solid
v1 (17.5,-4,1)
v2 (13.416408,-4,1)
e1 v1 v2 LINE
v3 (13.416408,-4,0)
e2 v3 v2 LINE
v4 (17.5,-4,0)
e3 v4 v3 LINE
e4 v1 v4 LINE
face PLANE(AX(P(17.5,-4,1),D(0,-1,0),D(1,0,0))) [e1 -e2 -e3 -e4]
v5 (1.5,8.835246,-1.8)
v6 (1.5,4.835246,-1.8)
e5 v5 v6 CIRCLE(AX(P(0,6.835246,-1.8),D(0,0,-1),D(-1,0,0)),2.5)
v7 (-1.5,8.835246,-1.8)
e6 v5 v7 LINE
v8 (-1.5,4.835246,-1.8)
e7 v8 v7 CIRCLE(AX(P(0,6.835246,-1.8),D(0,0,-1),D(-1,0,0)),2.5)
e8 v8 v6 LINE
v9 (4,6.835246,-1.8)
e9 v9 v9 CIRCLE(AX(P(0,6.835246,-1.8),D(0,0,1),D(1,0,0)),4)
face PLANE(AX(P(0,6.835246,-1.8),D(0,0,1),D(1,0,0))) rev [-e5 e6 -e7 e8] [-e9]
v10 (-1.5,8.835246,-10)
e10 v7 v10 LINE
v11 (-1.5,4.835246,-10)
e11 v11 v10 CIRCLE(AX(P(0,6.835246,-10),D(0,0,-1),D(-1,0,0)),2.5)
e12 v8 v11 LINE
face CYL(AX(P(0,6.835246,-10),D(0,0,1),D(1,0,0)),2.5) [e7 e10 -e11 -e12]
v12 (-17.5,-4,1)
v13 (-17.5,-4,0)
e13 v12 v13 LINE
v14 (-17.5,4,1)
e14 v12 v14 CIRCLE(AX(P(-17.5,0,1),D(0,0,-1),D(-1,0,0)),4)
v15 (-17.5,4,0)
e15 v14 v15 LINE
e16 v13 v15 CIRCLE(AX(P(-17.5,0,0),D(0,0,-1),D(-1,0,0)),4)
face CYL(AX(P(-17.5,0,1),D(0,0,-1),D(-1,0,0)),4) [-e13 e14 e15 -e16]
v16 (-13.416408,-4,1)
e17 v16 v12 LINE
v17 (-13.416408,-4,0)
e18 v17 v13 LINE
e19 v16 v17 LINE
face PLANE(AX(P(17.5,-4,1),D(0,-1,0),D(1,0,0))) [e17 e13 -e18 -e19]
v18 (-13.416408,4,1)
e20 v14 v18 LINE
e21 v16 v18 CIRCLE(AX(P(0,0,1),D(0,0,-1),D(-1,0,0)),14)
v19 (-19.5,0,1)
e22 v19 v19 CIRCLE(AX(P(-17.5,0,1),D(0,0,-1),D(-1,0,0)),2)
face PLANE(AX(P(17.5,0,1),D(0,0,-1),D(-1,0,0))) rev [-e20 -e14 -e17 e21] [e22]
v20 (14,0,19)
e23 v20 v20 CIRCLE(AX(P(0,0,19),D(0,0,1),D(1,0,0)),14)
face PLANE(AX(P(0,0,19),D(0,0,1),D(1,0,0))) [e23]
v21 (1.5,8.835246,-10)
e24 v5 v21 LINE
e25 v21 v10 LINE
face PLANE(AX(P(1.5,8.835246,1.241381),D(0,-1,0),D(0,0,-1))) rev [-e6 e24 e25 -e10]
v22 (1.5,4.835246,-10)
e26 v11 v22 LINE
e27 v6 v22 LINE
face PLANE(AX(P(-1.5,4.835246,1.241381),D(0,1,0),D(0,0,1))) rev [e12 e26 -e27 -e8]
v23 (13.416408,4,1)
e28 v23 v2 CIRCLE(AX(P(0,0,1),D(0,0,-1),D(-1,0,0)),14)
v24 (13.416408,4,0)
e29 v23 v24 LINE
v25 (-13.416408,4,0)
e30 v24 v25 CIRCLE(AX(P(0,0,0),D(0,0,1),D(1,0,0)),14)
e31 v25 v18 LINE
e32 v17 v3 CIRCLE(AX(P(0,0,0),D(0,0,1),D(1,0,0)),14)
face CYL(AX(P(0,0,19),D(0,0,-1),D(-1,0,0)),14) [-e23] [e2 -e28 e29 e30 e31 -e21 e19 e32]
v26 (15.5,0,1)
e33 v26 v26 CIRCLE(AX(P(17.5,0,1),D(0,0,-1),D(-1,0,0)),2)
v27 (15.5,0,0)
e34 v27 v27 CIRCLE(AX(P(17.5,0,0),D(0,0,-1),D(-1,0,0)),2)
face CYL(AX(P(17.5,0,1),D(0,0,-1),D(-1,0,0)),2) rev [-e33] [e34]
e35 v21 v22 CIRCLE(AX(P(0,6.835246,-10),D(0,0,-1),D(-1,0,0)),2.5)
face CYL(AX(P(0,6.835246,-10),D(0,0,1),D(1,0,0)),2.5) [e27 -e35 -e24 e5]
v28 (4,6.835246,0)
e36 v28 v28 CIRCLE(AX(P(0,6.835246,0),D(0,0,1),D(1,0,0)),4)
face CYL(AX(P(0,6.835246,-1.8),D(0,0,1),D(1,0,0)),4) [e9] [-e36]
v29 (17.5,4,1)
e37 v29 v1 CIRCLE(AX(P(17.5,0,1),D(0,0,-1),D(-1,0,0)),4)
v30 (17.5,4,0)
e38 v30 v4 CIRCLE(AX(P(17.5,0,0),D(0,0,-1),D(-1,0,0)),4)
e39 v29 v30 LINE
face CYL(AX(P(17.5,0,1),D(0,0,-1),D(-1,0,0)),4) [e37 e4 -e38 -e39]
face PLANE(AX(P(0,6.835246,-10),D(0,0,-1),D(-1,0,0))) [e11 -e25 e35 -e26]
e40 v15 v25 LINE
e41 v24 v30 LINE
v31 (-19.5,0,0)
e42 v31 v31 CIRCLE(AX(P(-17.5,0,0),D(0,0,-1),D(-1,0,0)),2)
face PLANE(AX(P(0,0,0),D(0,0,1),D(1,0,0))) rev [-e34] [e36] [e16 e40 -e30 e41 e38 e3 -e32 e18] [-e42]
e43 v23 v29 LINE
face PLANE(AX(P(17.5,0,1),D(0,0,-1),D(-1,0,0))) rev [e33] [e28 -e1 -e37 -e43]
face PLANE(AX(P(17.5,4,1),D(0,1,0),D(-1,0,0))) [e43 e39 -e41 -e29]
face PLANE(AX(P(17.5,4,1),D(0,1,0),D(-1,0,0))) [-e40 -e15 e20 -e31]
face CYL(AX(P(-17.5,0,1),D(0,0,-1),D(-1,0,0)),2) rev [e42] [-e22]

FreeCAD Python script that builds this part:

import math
import FreeCAD as App
import Part
import Sketcher
Q = App.Units.Quantity

doc = App.newDocument("Part")
body = doc.addObject("PartDesign::Body", "Body")

# Sketch on XY plane
sketch1 = body.newObject("Sketcher::SketchObject", "Sketch")
sketch1.AttachmentSupport = (doc.getObject("XY_Plane"), [""])
sketch1.MapMode = "FlatFace"
sketch1.addGeometry(Part.Circle(App.Vector(0, 0, 0), App.Vector(0, 0, 1), 14), False)
sketch1.addConstraint(Sketcher.Constraint("Coincident", 0, 3, -1, 1))
sketch1.addConstraint(Sketcher.Constraint("Diameter", 0, Q("28 mm")))
pad1 = body.newObject("PartDesign::Pad", "Pad")
pad1.Profile = sketch1
pad1.Length = 19

# Sketch on XY plane
sketch2 = body.newObject("Sketcher::SketchObject", "Sketch001")
sketch2.AttachmentSupport = (doc.getObject("XY_Plane"), [""])
sketch2.MapMode = "FlatFace"
sketch2.addGeometry(Part.Circle(App.Vector(0, 6.835246, 0), App.Vector(0, 0, 1), 4), False)
sketch2.addConstraint(Sketcher.Constraint("PointOnObject", 0, 3, -2))
sketch2.addConstraint(Sketcher.Constraint("Diameter", 0, Q("8 mm")))
sketch2.addConstraint(Sketcher.Constraint("DistanceY", -1, 1, 0, 3, Q("6.835246 mm")))
pad2 = body.newObject("PartDesign::Pad", "Pad001")
pad2.Profile = sketch2
pad2.Length = 1.8
pad2.Reversed = True

# Sketch on XY plane
sketch3 = body.newObject("Sketcher::SketchObject", "Sketch002")
sketch3.AttachmentSupport = (doc.getObject("XY_Plane"), [""])
sketch3.MapMode = "FlatFace"
sketch3.AttachmentOffset = App.Placement(App.Vector(0, 0, -1.8), App.Rotation())
sketch3.addGeometry(Part.Circle(App.Vector(0, 6.835246, 0), App.Vector(0, 0, 1), 2.5), False)
sketch3.addConstraint(Sketcher.Constraint("PointOnObject", 0, 3, -2))
sketch3.addConstraint(Sketcher.Constraint("Diameter", 0, Q("5 mm")))
sketch3.addConstraint(Sketcher.Constraint("DistanceY", -1, 1, 0, 3, Q("6.835246 mm")))
pad3 = body.newObject("PartDesign::Pad", "Pad002")
pad3.Profile = sketch3
pad3.Length = 8.2
pad3.Reversed = True

# Sketch on XY plane
sketch4 = body.newObject("Sketcher::SketchObject", "Sketch003")
sketch4.AttachmentSupport = (doc.getObject("XY_Plane"), [""])
sketch4.MapMode = "FlatFace"
sketch4.addGeometry(Part.LineSegment(App.Vector(-17.5, 4, 0), App.Vector(17.5, 4, 0)), False)
sketch4.addGeometry(Part.ArcOfCircle(Part.Circle(App.Vector(17.5, 0, 0), App.Vector(0, 0, 1), 4), math.radians(-90), math.radians(90)), False)
sketch4.addGeometry(Part.LineSegment(App.Vector(17.5, -4, 0), App.Vector(-17.5, -4, 0)), False)
sketch4.addGeometry(Part.ArcOfCircle(Part.Circle(App.Vector(-17.5, 0, 0), App.Vector(0, 0, 1), 4), math.radians(90), math.radians(270)), False)
sketch4.addGeometry(Part.Circle(App.Vector(-17.5, 0, 0), App.Vector(0, 0, 1), 2), False)
sketch4.addGeometry(Part.Circle(App.Vector(17.5, 0, 0), App.Vector(0, 0, 1), 2), False)
sketch4.addConstraint(Sketcher.Constraint("Tangent", 0, 2, 1, 2))
sketch4.addConstraint(Sketcher.Constraint("Tangent", 1, 1, 2, 1))
sketch4.addConstraint(Sketcher.Constraint("Tangent", 2, 2, 3, 2))
sketch4.addConstraint(Sketcher.Constraint("Tangent", 3, 1, 0, 1))
sketch4.addConstraint(Sketcher.Constraint("Horizontal", 0))
sketch4.addConstraint(Sketcher.Constraint("Horizontal", 2))
sketch4.addConstraint(Sketcher.Constraint("Coincident", 4, 3, 3, 3))
sketch4.addConstraint(Sketcher.Constraint("Coincident", 5, 3, 1, 3))
sketch4.addConstraint(Sketcher.Constraint("Equal", 4, 5))
sketch4.addConstraint(Sketcher.Constraint("Symmetric", 1, 3, 3, 3, -1, 1))
sketch4.addConstraint(Sketcher.Constraint("Diameter", 4, Q("4 mm")))
sketch4.addConstraint(Sketcher.Constraint("Radius", 1, Q("4 mm")))
sketch4.addConstraint(Sketcher.Constraint("DistanceX", 0, 1, 0, 2, Q("35 mm")))
pad4 = body.newObject("PartDesign::Pad", "Pad003")
pad4.Profile = sketch4
pad4.Length = 1

# Sketch on XY plane
sketch5 = body.newObject("Sketcher::SketchObject", "Sketch004")
sketch5.AttachmentSupport = (doc.getObject("XY_Plane"), [""])
sketch5.MapMode = "FlatFace"
sketch5.AttachmentOffset = App.Placement(App.Vector(0, 0, -1.8), App.Rotation())
sketch5.addGeometry(Part.LineSegment(App.Vector(1.5, 8.835246, 0), App.Vector(-1.5, 8.835246, 0)), False)
sketch5.addGeometry(Part.ArcOfCircle(Part.Circle(App.Vector(0, 6.835246, 0), App.Vector(0, 0, 1), 2.5), math.radians(53.130102), math.radians(126.869898)), False)
sketch5.addGeometry(Part.LineSegment(App.Vector(-1.5, 4.835246, 0), App.Vector(1.5, 4.835246, 0)), False)
sketch5.addGeometry(Part.ArcOfCircle(Part.Circle(App.Vector(0, 6.835246, 0), App.Vector(0, 0, 1), 2.5), math.radians(-126.869898), math.radians(-53.130102)), False)
sketch5.addConstraint(Sketcher.Constraint("Coincident", 0, 1, 1, 1))
sketch5.addConstraint(Sketcher.Constraint("Coincident", 1, 2, 0, 2))
sketch5.addConstraint(Sketcher.Constraint("Coincident", 2, 1, 3, 1))
sketch5.addConstraint(Sketcher.Constraint("Coincident", 3, 2, 2, 2))
sketch5.addConstraint(Sketcher.Constraint("Horizontal", 0))
sketch5.addConstraint(Sketcher.Constraint("Horizontal", 2))
sketch5.addConstraint(Sketcher.Constraint("Coincident", 3, 3, 1, 3))
sketch5.addConstraint(Sketcher.Constraint("Equal", 1, 3))
sketch5.addConstraint(Sketcher.Constraint("PointOnObject", 1, 3, -2))
sketch5.addConstraint(Sketcher.Constraint("Vertical", 1, 2, 2, 1))
sketch5.addConstraint(Sketcher.Constraint("Radius", 1, Q("2.5 mm")))
sketch5.addConstraint(Sketcher.Constraint("DistanceX", 0, 2, 0, 1, Q("3 mm")))
sketch5.addConstraint(Sketcher.Constraint("DistanceY", -1, 1, 1, 3, Q("6.835246 mm")))
pocket1 = body.newObject("PartDesign::Pocket", "Pocket")
pocket1.Profile = sketch5
pocket1.Length = 8.2

doc.recompute()
